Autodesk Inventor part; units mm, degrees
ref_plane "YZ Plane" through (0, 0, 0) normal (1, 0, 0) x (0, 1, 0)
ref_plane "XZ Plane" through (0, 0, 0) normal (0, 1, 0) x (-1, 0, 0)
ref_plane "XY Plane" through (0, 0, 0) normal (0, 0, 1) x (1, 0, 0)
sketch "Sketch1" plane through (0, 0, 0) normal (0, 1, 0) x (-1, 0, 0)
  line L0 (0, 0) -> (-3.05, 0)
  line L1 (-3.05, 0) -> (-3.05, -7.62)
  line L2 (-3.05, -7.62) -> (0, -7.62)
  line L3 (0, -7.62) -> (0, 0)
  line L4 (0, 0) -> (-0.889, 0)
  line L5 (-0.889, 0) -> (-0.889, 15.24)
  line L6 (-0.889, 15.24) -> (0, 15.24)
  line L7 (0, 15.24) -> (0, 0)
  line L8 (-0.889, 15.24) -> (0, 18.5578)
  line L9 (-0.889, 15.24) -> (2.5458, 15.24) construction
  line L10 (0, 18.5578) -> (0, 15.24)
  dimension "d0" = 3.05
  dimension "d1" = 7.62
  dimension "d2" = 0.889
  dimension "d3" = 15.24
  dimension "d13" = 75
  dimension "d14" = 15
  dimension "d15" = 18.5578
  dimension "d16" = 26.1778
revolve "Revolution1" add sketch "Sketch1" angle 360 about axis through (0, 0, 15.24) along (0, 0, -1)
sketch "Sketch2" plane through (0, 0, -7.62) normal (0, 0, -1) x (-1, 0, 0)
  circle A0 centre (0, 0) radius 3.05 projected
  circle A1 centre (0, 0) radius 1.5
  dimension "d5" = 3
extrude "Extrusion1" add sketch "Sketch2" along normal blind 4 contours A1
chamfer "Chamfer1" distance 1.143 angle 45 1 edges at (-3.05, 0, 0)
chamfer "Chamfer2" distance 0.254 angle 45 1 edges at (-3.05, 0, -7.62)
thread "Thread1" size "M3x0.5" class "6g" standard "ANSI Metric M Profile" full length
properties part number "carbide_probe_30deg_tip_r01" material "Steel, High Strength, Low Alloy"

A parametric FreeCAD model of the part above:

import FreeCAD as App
import Part
import Sketcher
Q = App.Units.Quantity


def edges_at(feature, points):
    """Names of the edges that pass closest to the given points."""
    edges = feature.Shape.Edges
    near = lambda p: min(range(len(edges)), key=lambda i: edges[i].distToShape(Part.Vertex(*p))[0])
    return sorted({f"Edge{near(p) + 1}" for p in points})

doc = App.newDocument("Part")
body = doc.addObject("PartDesign::Body", "Body")

sketch1 = body.newObject("Sketcher::SketchObject", "Sketch")
sketch1.AttachmentSupport = (doc.getObject("XZ_Plane"), [""])
sketch1.MapMode = "FlatFace"
sketch1.addGeometry([
    Part.LineSegment(App.Vector(0, -7.6, 0), App.Vector(0, 18.6, 0)),
    Part.LineSegment(App.Vector(0, 18.6, 0), App.Vector(0.9, 15.2, 0)),
    Part.LineSegment(App.Vector(0.9, 15.2, 0), App.Vector(0.9, 0, 0)),
    Part.LineSegment(App.Vector(0.9, 0, 0), App.Vector(3, 0, 0)),
    Part.LineSegment(App.Vector(3, 0, 0), App.Vector(3, -7.6, 0)),
    Part.LineSegment(App.Vector(3, -7.6, 0), App.Vector(0, -7.6, 0)),
], False)
sketch1.addConstraint([
    Sketcher.Constraint("Coincident", 0, 2, 1, 1),
    Sketcher.Constraint("Coincident", 1, 2, 2, 1),
    Sketcher.Constraint("Coincident", 2, 2, 3, 1),
    Sketcher.Constraint("Coincident", 3, 2, 4, 1),
    Sketcher.Constraint("Coincident", 4, 2, 5, 1),
    Sketcher.Constraint("Coincident", 5, 2, 0, 1),
    Sketcher.Constraint("Vertical", 0),
    Sketcher.Constraint("Vertical", 2),
    Sketcher.Constraint("Horizontal", 3),
    Sketcher.Constraint("Vertical", 4),
    Sketcher.Constraint("Horizontal", 5),
    Sketcher.Constraint("PointOnObject", 0, 2, -2),
    Sketcher.Constraint("PointOnObject", 2, 2, -1),
    Sketcher.Constraint("DistanceY", 2, 2, 2, 1, Q("0.6 in")),
    Sketcher.Constraint("DistanceY", 4, 2, 4, 1, Q("0.3 in")),
    Sketcher.Constraint("Angle", 1, Q("-75 deg")),
    Sketcher.Constraint("DistanceX", -1, 1, 1, 2, Q("0.035 in")),
    Sketcher.Constraint("DistanceX", 5, 2, 5, 1, 3.05),
])
revolution = body.newObject("PartDesign::Revolution", "Revolution")
revolution.Profile = sketch1
revolution.ReferenceAxis = (sketch1, ["V_Axis"])
revolution.Angle = 360

sketch2 = body.newObject("Sketcher::SketchObject", "Sketch001")
sketch2.AttachmentSupport = (doc.getObject("XY_Plane"), [""])
sketch2.MapMode = "FlatFace"
sketch2.AttachmentOffset = App.Placement(App.Vector(0, 0, -0.3 * 25.4), App.Rotation())
sketch2.addGeometry(Part.Circle(App.Vector(0, 0, 0), App.Vector(0, 0, 1), 1.5), False)
sketch2.addConstraint([
    Sketcher.Constraint("Coincident", 0, 3, -1, 1),
    Sketcher.Constraint("Diameter", 0, Q("0.1181 in")),
])
pad1 = body.newObject("PartDesign::Pad", "Pad")
pad1.Profile = sketch2
pad1.Length = 4
pad1.Reversed = True
doc.recompute()

chamfer = body.newObject("PartDesign::Chamfer", "Chamfer")
chamfer.Base = (pad1, edges_at(pad1, [(-3.05, 0, 0)]))
chamfer.Size = Q("0.045 in")
doc.recompute()

chamfer2 = body.newObject("PartDesign::Chamfer", "Chamfer001")
chamfer2.Base = (chamfer, edges_at(chamfer, [(-3.05, 0, -7.62)]))
chamfer2.Size = Q("0.01 in")

doc.recompute()
